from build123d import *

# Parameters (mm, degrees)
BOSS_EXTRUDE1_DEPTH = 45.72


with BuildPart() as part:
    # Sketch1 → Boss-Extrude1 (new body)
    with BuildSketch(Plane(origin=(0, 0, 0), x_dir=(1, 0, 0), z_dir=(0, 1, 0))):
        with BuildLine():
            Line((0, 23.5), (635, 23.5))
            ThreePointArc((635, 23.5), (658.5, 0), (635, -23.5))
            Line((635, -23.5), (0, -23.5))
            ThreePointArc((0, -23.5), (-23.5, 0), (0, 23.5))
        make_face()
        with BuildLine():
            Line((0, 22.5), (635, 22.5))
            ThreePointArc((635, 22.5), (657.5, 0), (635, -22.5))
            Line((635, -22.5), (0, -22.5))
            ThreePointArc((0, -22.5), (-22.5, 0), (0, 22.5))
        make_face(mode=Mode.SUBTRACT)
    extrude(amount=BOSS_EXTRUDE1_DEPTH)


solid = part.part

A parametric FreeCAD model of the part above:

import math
import FreeCAD as App
import Part
import Sketcher

V = App.Vector

doc = App.newDocument("Part")
body = doc.addObject("PartDesign::Body", "Body")

sketch1 = doc.addObject("Sketcher::SketchObject", "Sketch")
body.addObject(sketch1)
sketch1.AttachmentSupport = (doc.XZ_Plane, [""])
sketch1.MapMode = "FlatFace"
sketch1.addGeometry([
    Part.LineSegment(V(635, -24, 0), V(0, -24, 0)),
    Part.ArcOfCircle(Part.Circle(V(0, 0, 0), V(0, 0, 1), 24), math.radians(90), math.radians(270)),
    Part.LineSegment(V(0, 24, 0), V(635, 24, 0)),
    Part.ArcOfCircle(Part.Circle(V(635, 0, 0), V(0, 0, 1), 24), math.radians(-90), math.radians(90)),
    Part.LineSegment(V(0, -22, 0), V(635, -22, 0)),
    Part.ArcOfCircle(Part.Circle(V(635, 0, 0), V(0, 0, 1), 22), math.radians(-90), math.radians(90)),
    Part.LineSegment(V(635, 22, 0), V(0, 22, 0)),
    Part.ArcOfCircle(Part.Circle(V(0, 0, 0), V(0, 0, 1), 22), math.radians(90), math.radians(270)),
], False)
sketch1.addConstraint([
    Sketcher.Constraint("Tangent", 0, 2, 1, 2),
    Sketcher.Constraint("Tangent", 1, 1, 2, 1),
    Sketcher.Constraint("Tangent", 2, 2, 3, 2),
    Sketcher.Constraint("Tangent", 3, 1, 0, 1),
    Sketcher.Constraint("Tangent", 4, 2, 5, 1),
    Sketcher.Constraint("Tangent", 5, 2, 6, 1),
    Sketcher.Constraint("Tangent", 6, 2, 7, 1),
    Sketcher.Constraint("Tangent", 7, 2, 4, 1),
    Sketcher.Constraint("Horizontal", 0),
    Sketcher.Constraint("Horizontal", 2),
    Sketcher.Constraint("Horizontal", 4),
    Sketcher.Constraint("Horizontal", 6),
    Sketcher.Constraint("Coincident", 1, 3, -1, 1),
    Sketcher.Constraint("Coincident", 7, 3, -1, 1),
    Sketcher.Constraint("Vertical", 5, 3, 2, 2),
    Sketcher.Constraint("Radius", 1, 23.5),
    Sketcher.Constraint("Radius", 5, 22.5),
    Sketcher.Constraint("DistanceX", 0, 2, 0, 1, 635.0),
])
pad1 = doc.addObject("PartDesign::Pad", "Pad")
body.addObject(pad1)
pad1.Profile = sketch1
pad1.Length = 45.72
pad1.Reversed = True

doc.recompute()
